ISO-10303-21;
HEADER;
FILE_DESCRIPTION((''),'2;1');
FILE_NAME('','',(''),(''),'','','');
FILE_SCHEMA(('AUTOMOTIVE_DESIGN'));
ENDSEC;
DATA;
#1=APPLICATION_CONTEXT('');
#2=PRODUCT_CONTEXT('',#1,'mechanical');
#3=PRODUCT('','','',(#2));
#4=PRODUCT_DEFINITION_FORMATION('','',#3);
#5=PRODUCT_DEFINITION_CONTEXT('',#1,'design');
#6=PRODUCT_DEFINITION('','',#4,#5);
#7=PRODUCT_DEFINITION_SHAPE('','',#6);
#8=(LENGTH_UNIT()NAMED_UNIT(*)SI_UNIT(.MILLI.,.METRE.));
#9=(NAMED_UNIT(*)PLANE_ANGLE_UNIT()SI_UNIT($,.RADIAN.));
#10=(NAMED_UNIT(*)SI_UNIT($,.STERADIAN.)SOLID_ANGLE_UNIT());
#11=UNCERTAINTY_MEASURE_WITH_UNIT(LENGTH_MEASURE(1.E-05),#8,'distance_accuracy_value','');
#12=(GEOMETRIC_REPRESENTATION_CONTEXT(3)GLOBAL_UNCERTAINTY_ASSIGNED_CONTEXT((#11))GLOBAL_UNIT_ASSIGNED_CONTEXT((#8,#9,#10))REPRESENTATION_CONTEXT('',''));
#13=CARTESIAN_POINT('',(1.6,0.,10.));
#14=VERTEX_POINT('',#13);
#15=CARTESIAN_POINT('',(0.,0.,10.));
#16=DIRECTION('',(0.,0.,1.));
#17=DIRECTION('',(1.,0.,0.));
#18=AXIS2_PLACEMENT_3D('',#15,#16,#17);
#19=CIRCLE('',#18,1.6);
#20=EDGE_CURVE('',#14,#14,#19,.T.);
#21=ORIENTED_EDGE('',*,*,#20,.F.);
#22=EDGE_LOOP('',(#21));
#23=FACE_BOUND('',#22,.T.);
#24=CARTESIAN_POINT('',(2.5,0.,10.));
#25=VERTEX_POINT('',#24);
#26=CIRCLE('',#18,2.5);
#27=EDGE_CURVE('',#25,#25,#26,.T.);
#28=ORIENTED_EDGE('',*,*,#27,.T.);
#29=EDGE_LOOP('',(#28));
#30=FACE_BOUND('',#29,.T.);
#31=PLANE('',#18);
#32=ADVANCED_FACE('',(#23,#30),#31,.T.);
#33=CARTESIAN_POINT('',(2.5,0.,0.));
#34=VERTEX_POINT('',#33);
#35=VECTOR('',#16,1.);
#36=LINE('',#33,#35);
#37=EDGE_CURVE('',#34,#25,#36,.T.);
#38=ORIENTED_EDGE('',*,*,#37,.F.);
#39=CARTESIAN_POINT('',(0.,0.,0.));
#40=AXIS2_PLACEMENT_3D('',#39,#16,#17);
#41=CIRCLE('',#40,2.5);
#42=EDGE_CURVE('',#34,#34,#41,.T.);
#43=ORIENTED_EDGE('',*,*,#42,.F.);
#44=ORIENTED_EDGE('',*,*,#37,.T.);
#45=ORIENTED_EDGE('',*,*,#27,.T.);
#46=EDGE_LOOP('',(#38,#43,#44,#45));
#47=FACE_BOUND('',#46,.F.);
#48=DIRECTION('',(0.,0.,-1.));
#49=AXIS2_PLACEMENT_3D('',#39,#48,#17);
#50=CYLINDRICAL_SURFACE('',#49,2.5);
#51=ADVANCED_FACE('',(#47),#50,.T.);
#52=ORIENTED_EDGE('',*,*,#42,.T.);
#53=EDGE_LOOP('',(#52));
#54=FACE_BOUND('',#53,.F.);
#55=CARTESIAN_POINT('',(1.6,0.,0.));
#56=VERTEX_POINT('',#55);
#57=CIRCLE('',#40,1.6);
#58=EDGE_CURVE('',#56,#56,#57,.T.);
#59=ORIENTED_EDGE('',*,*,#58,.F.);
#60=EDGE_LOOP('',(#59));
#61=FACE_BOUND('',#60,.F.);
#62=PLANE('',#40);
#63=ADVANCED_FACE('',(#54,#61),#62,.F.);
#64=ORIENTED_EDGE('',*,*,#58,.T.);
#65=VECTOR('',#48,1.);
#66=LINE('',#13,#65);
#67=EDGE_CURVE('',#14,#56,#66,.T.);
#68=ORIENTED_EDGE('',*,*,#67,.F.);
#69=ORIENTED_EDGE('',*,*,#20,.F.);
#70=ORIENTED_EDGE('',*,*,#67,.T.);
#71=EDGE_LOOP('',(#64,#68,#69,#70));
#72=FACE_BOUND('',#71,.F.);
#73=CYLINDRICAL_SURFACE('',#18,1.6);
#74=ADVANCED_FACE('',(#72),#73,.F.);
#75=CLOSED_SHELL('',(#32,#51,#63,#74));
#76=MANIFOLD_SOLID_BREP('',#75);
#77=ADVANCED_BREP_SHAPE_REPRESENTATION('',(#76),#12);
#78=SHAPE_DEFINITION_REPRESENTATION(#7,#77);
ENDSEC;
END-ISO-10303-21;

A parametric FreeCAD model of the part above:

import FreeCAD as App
import Part
import Sketcher

doc = App.newDocument("Part")
params = doc.addObject("Spreadsheet::Sheet", "Params")
for row, (alias, value) in enumerate([
    ("sketch1_diameter", "3.2 mm"),
    ("pad1_length", "10 mm"),
    ("sketch2_diameter", "5 mm"),
    ("pad2_length", "10 mm"),
], start=1):
    params.set(f"A{row}", alias)
    params.set(f"B{row}", "=" + value)
    params.setAlias(f"B{row}", alias)

body = doc.addObject("PartDesign::Body", "Body")

# Sketch on XY plane
sketch1 = doc.addObject("Sketcher::SketchObject", "Sketch")
body.addObject(sketch1)
sketch1.AttachmentSupport = (doc.XY_Plane, [""])
sketch1.MapMode = "FlatFace"
sketch1.AttachmentOffset = App.Placement(App.Vector(0, 0, 10), App.Rotation())
sketch1.addGeometry(Part.Circle(App.Vector(0, 0, 0), App.Vector(0, 0, 1), 1.6), False)
sketch1.addConstraint(Sketcher.Constraint("Coincident", 0, 3, -1, 1))
sketch1.addConstraint(Sketcher.Constraint("Diameter", 0, 3.2))
sketch1.setExpression("Constraints[1]", "Params.sketch1_diameter")
pad1 = doc.addObject("PartDesign::Pad", "Pad")
body.addObject(pad1)
pad1.Profile = sketch1
pad1.setExpression("Length", "Params.pad1_length")
pad1.Reversed = True
body2 = doc.addObject("PartDesign::Body", "Body001")

# Sketch on XY plane
sketch2 = doc.addObject("Sketcher::SketchObject", "Sketch001")
body2.addObject(sketch2)
sketch2.AttachmentSupport = (doc.getObject("XY_Plane001"), [""])
sketch2.MapMode = "FlatFace"
sketch2.addGeometry(Part.Circle(App.Vector(0, 0, 0), App.Vector(0, 0, 1), 2.5), False)
sketch2.addConstraint(Sketcher.Constraint("Coincident", 0, 3, -1, 1))
sketch2.addConstraint(Sketcher.Constraint("Diameter", 0, 5.0))
sketch2.setExpression("Constraints[1]", "Params.sketch2_diameter")
pad2 = doc.addObject("PartDesign::Pad", "Pad001")
body2.addObject(pad2)
pad2.Profile = sketch2
pad2.setExpression("Length", "Params.pad2_length")
doc.recompute()

boolean = doc.addObject("PartDesign::Boolean", "Boolean")
body2.addObject(boolean)
boolean.Type = "Cut"
boolean.addObjects([body])

doc.recompute()
